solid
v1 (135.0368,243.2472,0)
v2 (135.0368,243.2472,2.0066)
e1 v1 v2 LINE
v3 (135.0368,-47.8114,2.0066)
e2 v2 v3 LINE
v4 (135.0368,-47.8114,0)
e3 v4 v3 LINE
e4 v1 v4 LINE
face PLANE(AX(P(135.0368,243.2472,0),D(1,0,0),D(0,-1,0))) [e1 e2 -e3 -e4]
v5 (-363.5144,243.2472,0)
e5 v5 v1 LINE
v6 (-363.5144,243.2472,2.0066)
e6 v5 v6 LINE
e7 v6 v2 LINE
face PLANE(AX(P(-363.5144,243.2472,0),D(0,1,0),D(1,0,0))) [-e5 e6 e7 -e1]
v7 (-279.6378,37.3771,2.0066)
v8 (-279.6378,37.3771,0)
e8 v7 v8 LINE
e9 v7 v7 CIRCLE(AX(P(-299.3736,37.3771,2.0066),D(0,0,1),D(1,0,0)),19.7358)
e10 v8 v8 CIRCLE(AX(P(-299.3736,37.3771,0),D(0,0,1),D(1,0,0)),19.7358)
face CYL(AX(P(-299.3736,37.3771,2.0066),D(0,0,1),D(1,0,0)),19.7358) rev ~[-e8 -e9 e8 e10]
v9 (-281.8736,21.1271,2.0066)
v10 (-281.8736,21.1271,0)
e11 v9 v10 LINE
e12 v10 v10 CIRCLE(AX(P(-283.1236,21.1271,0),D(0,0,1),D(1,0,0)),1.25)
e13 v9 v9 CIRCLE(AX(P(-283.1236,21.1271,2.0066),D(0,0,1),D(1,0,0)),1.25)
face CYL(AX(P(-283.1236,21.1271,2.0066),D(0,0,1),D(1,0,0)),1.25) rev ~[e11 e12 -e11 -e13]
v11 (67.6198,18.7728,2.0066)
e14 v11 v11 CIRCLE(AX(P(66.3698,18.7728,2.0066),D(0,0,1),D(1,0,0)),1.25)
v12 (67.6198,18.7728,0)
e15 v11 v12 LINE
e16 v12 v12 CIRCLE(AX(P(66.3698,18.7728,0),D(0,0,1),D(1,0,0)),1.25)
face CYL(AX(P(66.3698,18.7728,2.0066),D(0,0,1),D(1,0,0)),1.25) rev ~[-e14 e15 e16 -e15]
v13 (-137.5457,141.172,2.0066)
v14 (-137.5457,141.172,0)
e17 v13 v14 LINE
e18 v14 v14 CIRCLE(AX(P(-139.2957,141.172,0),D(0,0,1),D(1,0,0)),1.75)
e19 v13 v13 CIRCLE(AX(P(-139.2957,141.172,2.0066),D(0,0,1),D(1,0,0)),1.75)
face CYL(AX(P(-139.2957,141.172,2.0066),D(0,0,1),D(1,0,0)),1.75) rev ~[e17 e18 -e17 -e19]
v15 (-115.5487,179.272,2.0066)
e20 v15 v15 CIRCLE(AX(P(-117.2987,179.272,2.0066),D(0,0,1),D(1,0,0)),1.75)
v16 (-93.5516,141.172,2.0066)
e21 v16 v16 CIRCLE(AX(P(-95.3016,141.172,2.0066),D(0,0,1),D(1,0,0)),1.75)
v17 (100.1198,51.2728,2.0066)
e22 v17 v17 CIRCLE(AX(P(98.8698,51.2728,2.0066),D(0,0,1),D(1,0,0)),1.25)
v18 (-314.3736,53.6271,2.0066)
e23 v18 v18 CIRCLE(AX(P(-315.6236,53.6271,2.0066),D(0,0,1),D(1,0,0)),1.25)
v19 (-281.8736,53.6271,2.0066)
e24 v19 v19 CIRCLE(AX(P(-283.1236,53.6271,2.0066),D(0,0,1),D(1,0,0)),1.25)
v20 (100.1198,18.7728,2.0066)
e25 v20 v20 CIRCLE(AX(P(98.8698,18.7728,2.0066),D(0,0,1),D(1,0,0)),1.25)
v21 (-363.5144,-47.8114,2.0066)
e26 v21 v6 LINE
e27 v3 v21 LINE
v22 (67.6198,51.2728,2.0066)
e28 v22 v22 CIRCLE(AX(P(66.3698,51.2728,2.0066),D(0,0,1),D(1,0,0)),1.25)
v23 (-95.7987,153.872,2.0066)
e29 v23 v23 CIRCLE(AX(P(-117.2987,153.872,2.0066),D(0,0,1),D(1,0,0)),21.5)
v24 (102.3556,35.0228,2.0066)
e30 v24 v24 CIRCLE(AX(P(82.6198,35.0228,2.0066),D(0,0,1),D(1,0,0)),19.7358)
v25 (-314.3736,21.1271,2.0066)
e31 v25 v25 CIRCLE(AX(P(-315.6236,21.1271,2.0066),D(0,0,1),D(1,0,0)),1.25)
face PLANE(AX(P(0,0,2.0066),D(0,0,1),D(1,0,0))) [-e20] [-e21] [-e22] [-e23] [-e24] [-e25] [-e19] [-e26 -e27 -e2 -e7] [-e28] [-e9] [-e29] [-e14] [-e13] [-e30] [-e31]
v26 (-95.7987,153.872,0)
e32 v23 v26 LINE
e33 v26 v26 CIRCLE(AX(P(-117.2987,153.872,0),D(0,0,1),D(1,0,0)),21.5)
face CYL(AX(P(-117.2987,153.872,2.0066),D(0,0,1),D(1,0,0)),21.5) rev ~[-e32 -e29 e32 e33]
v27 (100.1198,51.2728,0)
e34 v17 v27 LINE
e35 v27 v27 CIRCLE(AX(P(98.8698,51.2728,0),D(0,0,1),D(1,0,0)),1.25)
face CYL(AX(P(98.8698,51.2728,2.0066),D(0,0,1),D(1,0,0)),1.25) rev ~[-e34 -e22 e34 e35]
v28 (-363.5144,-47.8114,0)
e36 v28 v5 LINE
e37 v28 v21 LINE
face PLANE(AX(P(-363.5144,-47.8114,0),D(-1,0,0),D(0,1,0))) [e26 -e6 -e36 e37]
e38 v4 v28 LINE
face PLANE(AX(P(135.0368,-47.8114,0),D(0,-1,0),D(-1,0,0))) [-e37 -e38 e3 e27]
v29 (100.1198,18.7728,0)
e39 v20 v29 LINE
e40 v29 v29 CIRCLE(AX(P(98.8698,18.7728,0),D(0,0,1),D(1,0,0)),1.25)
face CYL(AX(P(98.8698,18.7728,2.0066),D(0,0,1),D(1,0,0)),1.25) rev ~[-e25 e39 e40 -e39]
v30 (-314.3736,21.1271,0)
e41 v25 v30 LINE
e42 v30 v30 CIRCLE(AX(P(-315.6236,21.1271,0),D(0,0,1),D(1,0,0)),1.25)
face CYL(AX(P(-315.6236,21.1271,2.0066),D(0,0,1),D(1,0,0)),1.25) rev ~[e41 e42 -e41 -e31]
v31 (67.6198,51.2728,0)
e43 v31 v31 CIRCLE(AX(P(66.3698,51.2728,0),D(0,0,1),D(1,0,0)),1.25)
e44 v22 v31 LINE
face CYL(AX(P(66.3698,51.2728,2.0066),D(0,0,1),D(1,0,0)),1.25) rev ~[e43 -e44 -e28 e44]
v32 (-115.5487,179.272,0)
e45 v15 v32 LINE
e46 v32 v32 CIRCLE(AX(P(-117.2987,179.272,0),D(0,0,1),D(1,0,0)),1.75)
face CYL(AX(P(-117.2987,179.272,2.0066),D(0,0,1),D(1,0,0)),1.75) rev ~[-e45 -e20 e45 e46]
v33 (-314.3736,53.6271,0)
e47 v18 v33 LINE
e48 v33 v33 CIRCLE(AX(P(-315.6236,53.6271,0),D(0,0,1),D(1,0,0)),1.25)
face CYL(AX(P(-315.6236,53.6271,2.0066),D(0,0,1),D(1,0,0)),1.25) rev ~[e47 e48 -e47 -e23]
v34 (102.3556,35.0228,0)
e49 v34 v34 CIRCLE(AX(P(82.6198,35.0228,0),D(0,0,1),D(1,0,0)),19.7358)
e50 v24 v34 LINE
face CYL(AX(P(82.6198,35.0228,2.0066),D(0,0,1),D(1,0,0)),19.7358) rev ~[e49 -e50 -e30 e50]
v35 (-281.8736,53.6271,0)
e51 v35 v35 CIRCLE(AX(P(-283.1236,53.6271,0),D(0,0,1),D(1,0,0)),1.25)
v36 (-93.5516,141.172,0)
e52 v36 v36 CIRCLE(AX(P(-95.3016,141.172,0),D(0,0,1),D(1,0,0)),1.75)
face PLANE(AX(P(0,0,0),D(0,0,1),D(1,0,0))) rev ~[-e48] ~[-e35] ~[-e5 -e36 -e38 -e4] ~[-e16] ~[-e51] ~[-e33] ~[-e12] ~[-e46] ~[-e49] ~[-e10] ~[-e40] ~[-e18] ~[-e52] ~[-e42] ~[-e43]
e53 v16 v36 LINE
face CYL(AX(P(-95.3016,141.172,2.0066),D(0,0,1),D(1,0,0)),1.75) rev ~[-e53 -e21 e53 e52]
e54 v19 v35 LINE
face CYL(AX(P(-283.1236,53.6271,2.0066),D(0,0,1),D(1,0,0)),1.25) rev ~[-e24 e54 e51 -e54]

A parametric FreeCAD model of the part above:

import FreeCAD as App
import Part
import Sketcher

V = App.Vector
Q = App.Units.Quantity


def add_polygon(sketch, points):
    """Adds a closed chain of lines whose ends are joined by coincident constraints."""
    first, n = sketch.GeometryCount, len(points)
    for a, b in zip(points, points[1:] + points[:1]):
        sketch.addGeometry(Part.LineSegment(App.Vector(*a, 0), App.Vector(*b, 0)), False)
    for i in range(n):
        sketch.addConstraint(Sketcher.Constraint("Coincident", first + i, 2, first + (i + 1) % n, 1))

doc = App.newDocument("Part")
body = doc.addObject("PartDesign::Body", "Body")

# Sketch on XY plane
sketch1 = doc.addObject("Sketcher::SketchObject", "Sketch")
body.addObject(sketch1)
sketch1.AttachmentSupport = (doc.XY_Plane, [""])
sketch1.MapMode = "FlatFace"
add_polygon(sketch1, [(135, 243), (-364, 243), (-364, -48), (135, -48)])  # lines 0-3
sketch1.addConstraint(Sketcher.Constraint("Horizontal", 0))
sketch1.addConstraint(Sketcher.Constraint("Vertical", 1))
sketch1.addConstraint(Sketcher.Constraint("Horizontal", 2))
sketch1.addConstraint(Sketcher.Constraint("Vertical", 3))
sketch1.addConstraint(Sketcher.Constraint("DistanceX", 0, 2, 0, 1, Q("19.628 in")))
sketch1.addConstraint(Sketcher.Constraint("DistanceY", 1, 2, 1, 1, Q("11.459 in")))
sketch1.addConstraint(Sketcher.Constraint("DistanceX", 0, 2, -1, 1, Q("14.3116 in")))
sketch1.addConstraint(Sketcher.Constraint("DistanceY", -1, 1, 0, 2, 243.2472))
pad1 = doc.addObject("PartDesign::Pad", "Pad")
body.addObject(pad1)
pad1.Profile = sketch1
pad1.Length = Q("0.079 in")

# Sketch on XY plane
sketch2 = doc.addObject("Sketcher::SketchObject", "Sketch001")
body.addObject(sketch2)
sketch2.AttachmentSupport = (doc.XY_Plane, [""])
sketch2.MapMode = "FlatFace"
sketch2.AttachmentOffset = App.Placement(V(0, 0, 0.079 * 25.4), App.Rotation())
sketch2.addGeometry(Part.Circle(V(82.6, 35, 0), V(0, 0, 1), 19.7), False)
sketch2.addGeometry(Part.Circle(V(66.4, 18.8, 0), V(0, 0, 1), 1.2), False)
sketch2.addGeometry(Part.Circle(V(66.4, 51.3, 0), V(0, 0, 1), 1.2), False)
sketch2.addGeometry(Part.Circle(V(98.9, 18.8, 0), V(0, 0, 1), 1.2), False)
sketch2.addGeometry(Part.Circle(V(98.9, 51.3, 0), V(0, 0, 1), 1.2), False)
sketch2.addConstraint(Sketcher.Constraint("Equal", 1, 2))
sketch2.addConstraint(Sketcher.Constraint("Equal", 2, 3))
sketch2.addConstraint(Sketcher.Constraint("Equal", 3, 4))
sketch2.addConstraint(Sketcher.Constraint("Horizontal", 1, 3, 3, 3))
sketch2.addConstraint(Sketcher.Constraint("Horizontal", 2, 3, 4, 3))
sketch2.addConstraint(Sketcher.Constraint("Vertical", 1, 3, 2, 3))
sketch2.addConstraint(Sketcher.Constraint("Vertical", 3, 3, 4, 3))
sketch2.addConstraint(Sketcher.Constraint("Diameter", 0, Q("1.554 in")))
sketch2.addConstraint(Sketcher.Constraint("Diameter", 1, 2.5))
sketch2.addConstraint(Sketcher.Constraint("DistanceX", 1, 3, 0, 3, 16.25))
sketch2.addConstraint(Sketcher.Constraint("DistanceY", 1, 3, 0, 3, 16.25))
sketch2.addConstraint(Sketcher.Constraint("DistanceY", 0, 3, 2, 3, 16.25))
sketch2.addConstraint(Sketcher.Constraint("DistanceX", 0, 3, 3, 3, 16.25))
sketch2.addConstraint(Sketcher.Constraint("DistanceX", -1, 1, 3, 3, Q("3.8925 in")))
sketch2.addConstraint(Sketcher.Constraint("DistanceY", -1, 1, 0, 3, 35.0228))
pocket1 = doc.addObject("PartDesign::Pocket", "Pocket")
body.addObject(pocket1)
pocket1.Profile = sketch2
pocket1.Length = Q("0.079 in")

# Sketch on XY plane
sketch3 = doc.addObject("Sketcher::SketchObject", "Sketch002")
body.addObject(sketch3)
sketch3.AttachmentSupport = (doc.XY_Plane, [""])
sketch3.MapMode = "FlatFace"
sketch3.AttachmentOffset = App.Placement(V(0, 0, 0.079 * 25.4), App.Rotation())
sketch3.addGeometry(Part.Circle(V(-299.4, 37.4, 0), V(0, 0, 1), 19.7), False)
sketch3.addGeometry(Part.Circle(V(-315.6, 21.1, 0), V(0, 0, 1), 1.2), False)
sketch3.addGeometry(Part.Circle(V(-315.6, 53.6, 0), V(0, 0, 1), 1.2), False)
sketch3.addGeometry(Part.Circle(V(-283.1, 21.1, 0), V(0, 0, 1), 1.2), False)
sketch3.addGeometry(Part.Circle(V(-283.1, 53.6, 0), V(0, 0, 1), 1.2), False)
sketch3.addConstraint(Sketcher.Constraint("Equal", 1, 2))
sketch3.addConstraint(Sketcher.Constraint("Equal", 2, 3))
sketch3.addConstraint(Sketcher.Constraint("Equal", 3, 4))
sketch3.addConstraint(Sketcher.Constraint("Horizontal", 1, 3, 3, 3))
sketch3.addConstraint(Sketcher.Constraint("Horizontal", 2, 3, 4, 3))
sketch3.addConstraint(Sketcher.Constraint("Vertical", 1, 3, 2, 3))
sketch3.addConstraint(Sketcher.Constraint("Vertical", 3, 3, 4, 3))
sketch3.addConstraint(Sketcher.Constraint("Diameter", 0, Q("1.554 in")))
sketch3.addConstraint(Sketcher.Constraint("Diameter", 1, 2.5))
sketch3.addConstraint(Sketcher.Constraint("DistanceX", 1, 3, 0, 3, 16.25))
sketch3.addConstraint(Sketcher.Constraint("DistanceY", 1, 3, 0, 3, 16.25))
sketch3.addConstraint(Sketcher.Constraint("DistanceY", 0, 3, 2, 3, 16.25))
sketch3.addConstraint(Sketcher.Constraint("DistanceX", 0, 3, 3, 3, 16.25))
sketch3.addConstraint(Sketcher.Constraint("DistanceY", -1, 1, 2, 3, Q("2.1113 in")))
sketch3.addConstraint(Sketcher.Constraint("DistanceX", 3, 3, -1, 1, Q("11.1466 in")))
pocket2 = doc.addObject("PartDesign::Pocket", "Pocket001")
body.addObject(pocket2)
pocket2.Profile = sketch3
pocket2.Length = Q("0.079 in")

# Sketch on XY plane
sketch4 = doc.addObject("Sketcher::SketchObject", "Sketch003")
body.addObject(sketch4)
sketch4.AttachmentSupport = (doc.XY_Plane, [""])
sketch4.MapMode = "FlatFace"
sketch4.AttachmentOffset = App.Placement(V(0, 0, 0.079 * 25.4), App.Rotation())
sketch4.addGeometry(Part.Circle(V(-117.3, 153.9, 0), V(0, 0, 1), 21.5), False)
sketch4.addGeometry(Part.Circle(V(-117.3, 179.3, 0), V(0, 0, 1), 1.8), False)
sketch4.addGeometry(Part.Circle(V(-139.3, 141.2, 0), V(0, 0, 1), 1.8), False)
sketch4.addGeometry(Part.Circle(V(-95.3, 141.2, 0), V(0, 0, 1), 1.8), False)
sketch4.addConstraint(Sketcher.Constraint("Equal", 1, 2))
sketch4.addConstraint(Sketcher.Constraint("Equal", 2, 3))
sketch4.addConstraint(Sketcher.Constraint("Horizontal", 2, 3, 3, 3))
sketch4.addConstraint(Sketcher.Constraint("Vertical", 0, 3, 1, 3))
sketch4.addConstraint(Sketcher.Constraint("DistanceY", 0, 3, 1, 3, Q("1 in")))
sketch4.addConstraint(Sketcher.Constraint("Diameter", 1, Q("0.1378 in")))
sketch4.addConstraint(Sketcher.Constraint("Diameter", 0, 43.0))
sketch4.addConstraint(Sketcher.Constraint("DistanceY", 2, 3, 0, 3, Q("0.5 in")))
sketch4.addConstraint(Sketcher.Constraint("DistanceX", 0, 3, -1, 1, 117.2987))
sketch4.addConstraint(Sketcher.Constraint("DistanceY", -1, 1, 0, 3, 153.872))
sketch4.addConstraint(Sketcher.Constraint("DistanceX", 2, 3, -1, 1, 139.2957))
sketch4.addConstraint(Sketcher.Constraint("DistanceX", 3, 3, -1, 1, 95.3016))
pocket3 = doc.addObject("PartDesign::Pocket", "Pocket002")
body.addObject(pocket3)
pocket3.Profile = sketch4
pocket3.Length = Q("0.079 in")

doc.recompute()
